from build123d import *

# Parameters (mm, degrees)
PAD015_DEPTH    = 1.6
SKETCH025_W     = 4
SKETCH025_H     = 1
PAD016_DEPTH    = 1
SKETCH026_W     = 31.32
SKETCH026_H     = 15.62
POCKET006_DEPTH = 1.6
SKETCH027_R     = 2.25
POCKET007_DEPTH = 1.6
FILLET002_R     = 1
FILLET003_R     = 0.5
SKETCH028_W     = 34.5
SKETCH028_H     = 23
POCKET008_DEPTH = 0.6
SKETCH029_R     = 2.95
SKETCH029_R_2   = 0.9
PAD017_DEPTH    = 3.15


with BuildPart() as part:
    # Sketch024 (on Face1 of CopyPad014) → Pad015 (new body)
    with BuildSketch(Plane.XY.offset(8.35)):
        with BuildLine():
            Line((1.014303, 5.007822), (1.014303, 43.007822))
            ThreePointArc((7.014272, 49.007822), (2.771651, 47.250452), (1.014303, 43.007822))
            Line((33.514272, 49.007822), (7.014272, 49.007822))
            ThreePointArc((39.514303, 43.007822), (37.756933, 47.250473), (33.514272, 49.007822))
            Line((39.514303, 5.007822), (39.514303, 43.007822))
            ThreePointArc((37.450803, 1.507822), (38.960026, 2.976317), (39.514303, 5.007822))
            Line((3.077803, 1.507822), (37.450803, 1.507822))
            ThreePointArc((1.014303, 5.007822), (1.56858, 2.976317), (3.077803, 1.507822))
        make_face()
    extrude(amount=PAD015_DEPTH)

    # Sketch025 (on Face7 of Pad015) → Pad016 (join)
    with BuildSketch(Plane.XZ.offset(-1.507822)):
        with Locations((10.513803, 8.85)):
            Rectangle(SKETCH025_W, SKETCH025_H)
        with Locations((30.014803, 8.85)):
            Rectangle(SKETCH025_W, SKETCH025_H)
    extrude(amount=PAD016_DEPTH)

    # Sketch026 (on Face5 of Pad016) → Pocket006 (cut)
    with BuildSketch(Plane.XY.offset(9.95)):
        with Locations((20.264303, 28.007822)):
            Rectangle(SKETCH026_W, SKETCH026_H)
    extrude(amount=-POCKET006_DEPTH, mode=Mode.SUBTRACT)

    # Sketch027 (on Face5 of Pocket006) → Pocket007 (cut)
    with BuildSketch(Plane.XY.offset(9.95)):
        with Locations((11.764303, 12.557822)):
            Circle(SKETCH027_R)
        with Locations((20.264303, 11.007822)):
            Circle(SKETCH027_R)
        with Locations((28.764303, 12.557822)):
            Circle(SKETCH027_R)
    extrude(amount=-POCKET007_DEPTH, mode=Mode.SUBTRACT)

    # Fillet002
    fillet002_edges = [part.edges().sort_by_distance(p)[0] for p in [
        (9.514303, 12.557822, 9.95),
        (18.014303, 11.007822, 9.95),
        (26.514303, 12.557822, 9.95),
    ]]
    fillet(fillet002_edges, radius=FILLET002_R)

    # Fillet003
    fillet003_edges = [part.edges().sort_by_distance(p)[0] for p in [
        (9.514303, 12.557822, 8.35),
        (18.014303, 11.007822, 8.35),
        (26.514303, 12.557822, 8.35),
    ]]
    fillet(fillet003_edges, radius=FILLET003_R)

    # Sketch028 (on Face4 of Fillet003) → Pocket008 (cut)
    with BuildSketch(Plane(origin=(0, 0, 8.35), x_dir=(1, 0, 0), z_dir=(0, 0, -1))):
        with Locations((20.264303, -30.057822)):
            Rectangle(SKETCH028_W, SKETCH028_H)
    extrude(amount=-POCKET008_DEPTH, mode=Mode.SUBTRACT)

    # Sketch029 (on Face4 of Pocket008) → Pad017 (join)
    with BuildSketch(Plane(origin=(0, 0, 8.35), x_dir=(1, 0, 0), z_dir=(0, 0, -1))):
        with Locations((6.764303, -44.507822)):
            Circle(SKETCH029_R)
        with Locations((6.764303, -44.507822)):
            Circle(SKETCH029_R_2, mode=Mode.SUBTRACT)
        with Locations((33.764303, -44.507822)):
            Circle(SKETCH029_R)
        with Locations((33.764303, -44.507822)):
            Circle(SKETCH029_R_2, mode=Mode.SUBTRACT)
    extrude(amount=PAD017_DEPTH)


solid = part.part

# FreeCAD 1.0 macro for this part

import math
import FreeCAD as App
import Part
import Sketcher


def edges_at(feature, points):
    """Names of the edges that pass closest to the given points."""
    edges = feature.Shape.Edges
    near = lambda p: min(range(len(edges)), key=lambda i: edges[i].distToShape(Part.Vertex(*p))[0])
    return sorted({f"Edge{near(p) + 1}" for p in points})


def add_polygon(sketch, points):
    """Adds a closed chain of lines whose ends are joined by coincident constraints."""
    first, n = sketch.GeometryCount, len(points)
    for a, b in zip(points, points[1:] + points[:1]):
        sketch.addGeometry(Part.LineSegment(App.Vector(*a, 0), App.Vector(*b, 0)), False)
    for i in range(n):
        sketch.addConstraint(Sketcher.Constraint("Coincident", first + i, 2, first + (i + 1) % n, 1))

doc = App.newDocument("Part")
params = doc.addObject("Spreadsheet::Sheet", "Params")
for row, (alias, value) in enumerate([
    ("sketch1_radius", "3.999999 mm"),
    ("sketch1_radius2", "6.000001 mm"),
    ("sketch1_height", "38 mm"),
    ("sketch1_width", "26.5 mm"),
    ("pad1_length", "1.6 mm"),
    ("sketch2_width", "4 mm"),
    ("sketch2_height", "1 mm"),
    ("pad2_length", "1 mm"),
    ("sketch3_width", "31.32 mm"),
    ("sketch3_height", "15.62 mm"),
    ("pocket1_length", "1.6 mm"),
    ("sketch4_diameter", "4.5 mm"),
    ("pocket2_length", "1.6 mm"),
    ("fillet_radius", "1 mm"),
    ("fillet2_radius", "0.5 mm"),
    ("sketch5_height", "23 mm"),
    ("sketch5_width", "34.5 mm"),
    ("pocket3_length", "0.6 mm"),
    ("sketch6_diameter", "5.9 mm"),
    ("sketch6_diameter2", "1.8 mm"),
    ("pad3_length", "3.15 mm"),
], start=1):
    params.set(f"A{row}", alias)
    params.set(f"B{row}", "=" + value)
    params.setAlias(f"B{row}", alias)

body = doc.addObject("PartDesign::Body", "Body")

sketch1 = doc.addObject("Sketcher::SketchObject", "Sketch")
body.addObject(sketch1)
sketch1.AttachmentSupport = (doc.XY_Plane, [""])
sketch1.MapMode = "FlatFace"
sketch1.AttachmentOffset = App.Placement(App.Vector(0, 0, 8.35), App.Rotation())
sketch1.addGeometry([
    Part.LineSegment(App.Vector(1.014303, 43.007822, 0), App.Vector(1.014303, 5.007822, 0)),
    Part.ArcOfCircle(Part.Circle(App.Vector(5.014302, 5.007817, 0), App.Vector(0, 0, 1), 3.999999), math.radians(179.999929), math.radians(241.044845)),
    Part.LineSegment(App.Vector(3.077803, 1.507822, 0), App.Vector(37.450803, 1.507822, 0)),
    Part.ArcOfCircle(Part.Circle(App.Vector(35.514304, 5.007817, 0), App.Vector(0, 0, 1), 3.999999), math.radians(-61.044845), math.radians(0.000071)),
    Part.LineSegment(App.Vector(39.514303, 5.007822, 0), App.Vector(39.514303, 43.007822, 0)),
    Part.ArcOfCircle(Part.Circle(App.Vector(33.514302, 43.007821, 0), App.Vector(0, 0, 1), 6.000001), math.radians(0.000006), math.radians(90.00029)),
    Part.LineSegment(App.Vector(33.514272, 49.007822, 0), App.Vector(7.014272, 49.007822, 0)),
    Part.ArcOfCircle(Part.Circle(App.Vector(7.014302, 43.007823, 0), App.Vector(0, 0, 1), 5.999999), math.radians(90.000286), math.radians(180.00001)),
], False)
sketch1.addConstraint([
    Sketcher.Constraint("Tangent", 0, 2, 1, 1),
    Sketcher.Constraint("Coincident", 1, 2, 2, 1),
    Sketcher.Constraint("Coincident", 2, 2, 3, 1),
    Sketcher.Constraint("Tangent", 3, 2, 4, 1),
    Sketcher.Constraint("Tangent", 4, 2, 5, 1),
    Sketcher.Constraint("Coincident", 5, 2, 6, 1),
    Sketcher.Constraint("Coincident", 6, 2, 7, 1),
    Sketcher.Constraint("Tangent", 7, 2, 0, 1),
    Sketcher.Constraint("Vertical", 0),
    Sketcher.Constraint("Horizontal", 2),
    Sketcher.Constraint("Vertical", 4),
    Sketcher.Constraint("Horizontal", 6),
    Sketcher.Constraint("Equal", 1, 3),
    Sketcher.Constraint("Equal", 5, 7),
    Sketcher.Constraint("Horizontal", 1, 3, 3, 3),
    Sketcher.Constraint("Radius", 1, 3.999999),
    Sketcher.Constraint("Radius", 5, 6.000001),
    Sketcher.Constraint("DistanceY", 0, 2, 0, 1, 38.0),
    Sketcher.Constraint("DistanceX", 6, 2, 6, 1, 26.5),
    Sketcher.Constraint("DistanceX", 1, 3, 3, 3, 30.500001),
    Sketcher.Constraint("DistanceY", 1, 2, 0, 2, 3.5),
    Sketcher.Constraint("DistanceX", -1, 1, 7, 3, 7.014302),
    Sketcher.Constraint("DistanceY", -1, 1, 5, 3, 43.007821),
    Sketcher.Constraint("DistanceX", -1, 1, 5, 2, 33.514272),
])
sketch1.setExpression("Constraints[15]", "Params.sketch1_radius")
sketch1.setExpression("Constraints[16]", "Params.sketch1_radius2")
sketch1.setExpression("Constraints[17]", "Params.sketch1_height")
sketch1.setExpression("Constraints[18]", "Params.sketch1_width")
pad1 = doc.addObject("PartDesign::Pad", "Pad")
body.addObject(pad1)
pad1.Profile = sketch1
pad1.setExpression("Length", "Params.pad1_length")

sketch2 = doc.addObject("Sketcher::SketchObject", "Sketch001")
body.addObject(sketch2)
sketch2.AttachmentSupport = (doc.XZ_Plane, [""])
sketch2.MapMode = "FlatFace"
sketch2.AttachmentOffset = App.Placement(App.Vector(0, 0, -1.507822), App.Rotation())
add_polygon(sketch2, [(8.513803, 9.35), (8.513803, 8.35), (12.513803, 8.35), (12.513803, 9.35)])
add_polygon(sketch2, [(28.014803, 9.35), (28.014803, 8.35), (32.014803, 8.35), (32.014803, 9.35)])
sketch2.addConstraint([
    Sketcher.Constraint("Vertical", 0),
    Sketcher.Constraint("Horizontal", 1),
    Sketcher.Constraint("Vertical", 2),
    Sketcher.Constraint("Horizontal", 3),
    Sketcher.Constraint("Vertical", 4),
    Sketcher.Constraint("Horizontal", 5),
    Sketcher.Constraint("Vertical", 6),
    Sketcher.Constraint("Horizontal", 7),
    Sketcher.Constraint("Horizontal", 1, 2, 4, 2),
    Sketcher.Constraint("Horizontal", 3, 2, 6, 2),
    Sketcher.Constraint("Equal", 3, 5),
    Sketcher.Constraint("DistanceX", 1, 1, 1, 2, 4.0),
    Sketcher.Constraint("DistanceY", 0, 2, 0, 1, 1.0),
    Sketcher.Constraint("DistanceY", -1, 1, 0, 2, 8.35),
    Sketcher.Constraint("DistanceX", 1, 2, 4, 2, 15.501),
    Sketcher.Constraint("DistanceX", -1, 1, 0, 2, 8.513803),
])
sketch2.setExpression("Constraints[19]", "Params.sketch2_width")
sketch2.setExpression("Constraints[20]", "Params.sketch2_height")
pad2 = doc.addObject("PartDesign::Pad", "Pad001")
body.addObject(pad2)
pad2.Profile = sketch2
pad2.setExpression("Length", "Params.pad2_length")

sketch3 = doc.addObject("Sketcher::SketchObject", "Sketch002")
body.addObject(sketch3)
sketch3.AttachmentSupport = (doc.XY_Plane, [""])
sketch3.MapMode = "FlatFace"
sketch3.AttachmentOffset = App.Placement(App.Vector(0, 0, 9.95), App.Rotation())
add_polygon(sketch3, [(4.604303, 35.817822), (4.604303, 20.197822), (35.924303, 20.197822), (35.924303, 35.817822)])
sketch3.addConstraint([
    Sketcher.Constraint("Vertical", 0),
    Sketcher.Constraint("Horizontal", 1),
    Sketcher.Constraint("Vertical", 2),
    Sketcher.Constraint("Horizontal", 3),
    Sketcher.Constraint("DistanceX", 1, 1, 1, 2, 31.32),
    Sketcher.Constraint("DistanceY", 0, 2, 0, 1, 15.62),
    Sketcher.Constraint("DistanceY", -1, 1, 0, 2, 20.197822),
    Sketcher.Constraint("DistanceX", -1, 1, 0, 2, 4.604303),
])
sketch3.setExpression("Constraints[8]", "Params.sketch3_width")
sketch3.setExpression("Constraints[9]", "Params.sketch3_height")
pocket1 = doc.addObject("PartDesign::Pocket", "Pocket")
body.addObject(pocket1)
pocket1.Profile = sketch3
pocket1.setExpression("Length", "Params.pocket1_length")

sketch4 = doc.addObject("Sketcher::SketchObject", "Sketch003")
body.addObject(sketch4)
sketch4.AttachmentSupport = (doc.XY_Plane, [""])
sketch4.MapMode = "FlatFace"
sketch4.AttachmentOffset = App.Placement(App.Vector(0, 0, 9.95), App.Rotation())
sketch4.addGeometry([
    Part.Circle(App.Vector(11.764303, 12.557822, 0), App.Vector(0, 0, 1), 2.25),
    Part.Circle(App.Vector(20.264303, 11.007822, 0), App.Vector(0, 0, 1), 2.25),
    Part.Circle(App.Vector(28.764303, 12.557822, 0), App.Vector(0, 0, 1), 2.25),
], False)
sketch4.addConstraint([
    Sketcher.Constraint("Equal", 0, 1),
    Sketcher.Constraint("Equal", 1, 2),
    Sketcher.Constraint("Horizontal", 0, 3, 2, 3),
    Sketcher.Constraint("Diameter", 0, 4.5),
    Sketcher.Constraint("DistanceX", 0, 3, 2, 3, 17.0),
    Sketcher.Constraint("DistanceX", 0, 3, 1, 3, 8.5),
    Sketcher.Constraint("DistanceY", 1, 3, 0, 3, 1.55),
    Sketcher.Constraint("DistanceX", -1, 1, 0, 3, 11.764303),
    Sketcher.Constraint("DistanceY", -1, 1, 0, 3, 12.557822),
])
sketch4.setExpression("Constraints[3]", "Params.sketch4_diameter")
pocket2 = doc.addObject("PartDesign::Pocket", "Pocket001")
body.addObject(pocket2)
pocket2.Profile = sketch4
pocket2.setExpression("Length", "Params.pocket2_length")
doc.recompute()

fillet = doc.addObject("PartDesign::Fillet", "Fillet")
body.addObject(fillet)
fillet.Base = (pocket2, edges_at(pocket2, [(9.514, 12.558, 9.95), (18.014, 11.008, 9.95), (26.514, 12.558, 9.95)]))
fillet.setExpression("Radius", "Params.fillet_radius")
doc.recompute()

fillet2 = doc.addObject("PartDesign::Fillet", "Fillet001")
body.addObject(fillet2)
fillet2.Base = (fillet, edges_at(fillet, [(9.514, 12.558, 8.35), (18.014, 11.008, 8.35), (26.514, 12.558, 8.35)]))
fillet2.setExpression("Radius", "Params.fillet2_radius")

sketch5 = doc.addObject("Sketcher::SketchObject", "Sketch004")
body.addObject(sketch5)
sketch5.AttachmentSupport = (doc.XY_Plane, [""])
sketch5.MapMode = "FlatFace"
sketch5.AttachmentOffset = App.Placement(App.Vector(0, 0, 8.35), App.Rotation())
add_polygon(sketch5, [(3.014303, 18.557822), (3.014303, 41.557822), (37.514303, 41.557822), (37.514303, 18.557822)])
sketch5.addConstraint([
    Sketcher.Constraint("Vertical", 0),
    Sketcher.Constraint("Horizontal", 1),
    Sketcher.Constraint("Vertical", 2),
    Sketcher.Constraint("Horizontal", 3),
    Sketcher.Constraint("DistanceY", 0, 1, 0, 2, 23.0),
    Sketcher.Constraint("DistanceX", 1, 1, 1, 2, 34.5),
    Sketcher.Constraint("DistanceX", -1, 1, 0, 2, 3.014303),
    Sketcher.Constraint("DistanceY", -1, 1, 0, 2, 41.557822),
])
sketch5.setExpression("Constraints[8]", "Params.sketch5_height")
sketch5.setExpression("Constraints[9]", "Params.sketch5_width")
pocket3 = doc.addObject("PartDesign::Pocket", "Pocket002")
body.addObject(pocket3)
pocket3.Profile = sketch5
pocket3.setExpression("Length", "Params.pocket3_length")
pocket3.Reversed = True

sketch6 = doc.addObject("Sketcher::SketchObject", "Sketch005")
body.addObject(sketch6)
sketch6.AttachmentSupport = (doc.XY_Plane, [""])
sketch6.MapMode = "FlatFace"
sketch6.AttachmentOffset = App.Placement(App.Vector(0, 0, 8.35), App.Rotation())
sketch6.addGeometry([
    Part.Circle(App.Vector(6.764303, 44.507822, 0), App.Vector(0, 0, 1), 2.95),
    Part.Circle(App.Vector(6.764303, 44.507822, 0), App.Vector(0, 0, 1), 0.9),
    Part.Circle(App.Vector(33.764303, 44.507822, 0), App.Vector(0, 0, 1), 2.95),
    Part.Circle(App.Vector(33.764303, 44.507822, 0), App.Vector(0, 0, 1), 0.9),
], False)
sketch6.addConstraint([
    Sketcher.Constraint("Coincident", 1, 3, 0, 3),
    Sketcher.Constraint("Coincident", 3, 3, 2, 3),
    Sketcher.Constraint("Equal", 0, 2),
    Sketcher.Constraint("Equal", 1, 3),
    Sketcher.Constraint("Horizontal", 1, 3, 2, 3),
    Sketcher.Constraint("Diameter", 0, 5.9),
    Sketcher.Constraint("Diameter", 1, 1.8),
    Sketcher.Constraint("DistanceX", 0, 3, 2, 3, 27.0),
    Sketcher.Constraint("DistanceY", -1, 1, 0, 3, 44.507822),
    Sketcher.Constraint("DistanceX", -1, 1, 0, 3, 6.764303),
])
sketch6.setExpression("Constraints[5]", "Params.sketch6_diameter")
sketch6.setExpression("Constraints[6]", "Params.sketch6_diameter2")
pad3 = doc.addObject("PartDesign::Pad", "Pad002")
body.addObject(pad3)
pad3.Profile = sketch6
pad3.setExpression("Length", "Params.pad3_length")
pad3.Reversed = True

doc.recompute()
